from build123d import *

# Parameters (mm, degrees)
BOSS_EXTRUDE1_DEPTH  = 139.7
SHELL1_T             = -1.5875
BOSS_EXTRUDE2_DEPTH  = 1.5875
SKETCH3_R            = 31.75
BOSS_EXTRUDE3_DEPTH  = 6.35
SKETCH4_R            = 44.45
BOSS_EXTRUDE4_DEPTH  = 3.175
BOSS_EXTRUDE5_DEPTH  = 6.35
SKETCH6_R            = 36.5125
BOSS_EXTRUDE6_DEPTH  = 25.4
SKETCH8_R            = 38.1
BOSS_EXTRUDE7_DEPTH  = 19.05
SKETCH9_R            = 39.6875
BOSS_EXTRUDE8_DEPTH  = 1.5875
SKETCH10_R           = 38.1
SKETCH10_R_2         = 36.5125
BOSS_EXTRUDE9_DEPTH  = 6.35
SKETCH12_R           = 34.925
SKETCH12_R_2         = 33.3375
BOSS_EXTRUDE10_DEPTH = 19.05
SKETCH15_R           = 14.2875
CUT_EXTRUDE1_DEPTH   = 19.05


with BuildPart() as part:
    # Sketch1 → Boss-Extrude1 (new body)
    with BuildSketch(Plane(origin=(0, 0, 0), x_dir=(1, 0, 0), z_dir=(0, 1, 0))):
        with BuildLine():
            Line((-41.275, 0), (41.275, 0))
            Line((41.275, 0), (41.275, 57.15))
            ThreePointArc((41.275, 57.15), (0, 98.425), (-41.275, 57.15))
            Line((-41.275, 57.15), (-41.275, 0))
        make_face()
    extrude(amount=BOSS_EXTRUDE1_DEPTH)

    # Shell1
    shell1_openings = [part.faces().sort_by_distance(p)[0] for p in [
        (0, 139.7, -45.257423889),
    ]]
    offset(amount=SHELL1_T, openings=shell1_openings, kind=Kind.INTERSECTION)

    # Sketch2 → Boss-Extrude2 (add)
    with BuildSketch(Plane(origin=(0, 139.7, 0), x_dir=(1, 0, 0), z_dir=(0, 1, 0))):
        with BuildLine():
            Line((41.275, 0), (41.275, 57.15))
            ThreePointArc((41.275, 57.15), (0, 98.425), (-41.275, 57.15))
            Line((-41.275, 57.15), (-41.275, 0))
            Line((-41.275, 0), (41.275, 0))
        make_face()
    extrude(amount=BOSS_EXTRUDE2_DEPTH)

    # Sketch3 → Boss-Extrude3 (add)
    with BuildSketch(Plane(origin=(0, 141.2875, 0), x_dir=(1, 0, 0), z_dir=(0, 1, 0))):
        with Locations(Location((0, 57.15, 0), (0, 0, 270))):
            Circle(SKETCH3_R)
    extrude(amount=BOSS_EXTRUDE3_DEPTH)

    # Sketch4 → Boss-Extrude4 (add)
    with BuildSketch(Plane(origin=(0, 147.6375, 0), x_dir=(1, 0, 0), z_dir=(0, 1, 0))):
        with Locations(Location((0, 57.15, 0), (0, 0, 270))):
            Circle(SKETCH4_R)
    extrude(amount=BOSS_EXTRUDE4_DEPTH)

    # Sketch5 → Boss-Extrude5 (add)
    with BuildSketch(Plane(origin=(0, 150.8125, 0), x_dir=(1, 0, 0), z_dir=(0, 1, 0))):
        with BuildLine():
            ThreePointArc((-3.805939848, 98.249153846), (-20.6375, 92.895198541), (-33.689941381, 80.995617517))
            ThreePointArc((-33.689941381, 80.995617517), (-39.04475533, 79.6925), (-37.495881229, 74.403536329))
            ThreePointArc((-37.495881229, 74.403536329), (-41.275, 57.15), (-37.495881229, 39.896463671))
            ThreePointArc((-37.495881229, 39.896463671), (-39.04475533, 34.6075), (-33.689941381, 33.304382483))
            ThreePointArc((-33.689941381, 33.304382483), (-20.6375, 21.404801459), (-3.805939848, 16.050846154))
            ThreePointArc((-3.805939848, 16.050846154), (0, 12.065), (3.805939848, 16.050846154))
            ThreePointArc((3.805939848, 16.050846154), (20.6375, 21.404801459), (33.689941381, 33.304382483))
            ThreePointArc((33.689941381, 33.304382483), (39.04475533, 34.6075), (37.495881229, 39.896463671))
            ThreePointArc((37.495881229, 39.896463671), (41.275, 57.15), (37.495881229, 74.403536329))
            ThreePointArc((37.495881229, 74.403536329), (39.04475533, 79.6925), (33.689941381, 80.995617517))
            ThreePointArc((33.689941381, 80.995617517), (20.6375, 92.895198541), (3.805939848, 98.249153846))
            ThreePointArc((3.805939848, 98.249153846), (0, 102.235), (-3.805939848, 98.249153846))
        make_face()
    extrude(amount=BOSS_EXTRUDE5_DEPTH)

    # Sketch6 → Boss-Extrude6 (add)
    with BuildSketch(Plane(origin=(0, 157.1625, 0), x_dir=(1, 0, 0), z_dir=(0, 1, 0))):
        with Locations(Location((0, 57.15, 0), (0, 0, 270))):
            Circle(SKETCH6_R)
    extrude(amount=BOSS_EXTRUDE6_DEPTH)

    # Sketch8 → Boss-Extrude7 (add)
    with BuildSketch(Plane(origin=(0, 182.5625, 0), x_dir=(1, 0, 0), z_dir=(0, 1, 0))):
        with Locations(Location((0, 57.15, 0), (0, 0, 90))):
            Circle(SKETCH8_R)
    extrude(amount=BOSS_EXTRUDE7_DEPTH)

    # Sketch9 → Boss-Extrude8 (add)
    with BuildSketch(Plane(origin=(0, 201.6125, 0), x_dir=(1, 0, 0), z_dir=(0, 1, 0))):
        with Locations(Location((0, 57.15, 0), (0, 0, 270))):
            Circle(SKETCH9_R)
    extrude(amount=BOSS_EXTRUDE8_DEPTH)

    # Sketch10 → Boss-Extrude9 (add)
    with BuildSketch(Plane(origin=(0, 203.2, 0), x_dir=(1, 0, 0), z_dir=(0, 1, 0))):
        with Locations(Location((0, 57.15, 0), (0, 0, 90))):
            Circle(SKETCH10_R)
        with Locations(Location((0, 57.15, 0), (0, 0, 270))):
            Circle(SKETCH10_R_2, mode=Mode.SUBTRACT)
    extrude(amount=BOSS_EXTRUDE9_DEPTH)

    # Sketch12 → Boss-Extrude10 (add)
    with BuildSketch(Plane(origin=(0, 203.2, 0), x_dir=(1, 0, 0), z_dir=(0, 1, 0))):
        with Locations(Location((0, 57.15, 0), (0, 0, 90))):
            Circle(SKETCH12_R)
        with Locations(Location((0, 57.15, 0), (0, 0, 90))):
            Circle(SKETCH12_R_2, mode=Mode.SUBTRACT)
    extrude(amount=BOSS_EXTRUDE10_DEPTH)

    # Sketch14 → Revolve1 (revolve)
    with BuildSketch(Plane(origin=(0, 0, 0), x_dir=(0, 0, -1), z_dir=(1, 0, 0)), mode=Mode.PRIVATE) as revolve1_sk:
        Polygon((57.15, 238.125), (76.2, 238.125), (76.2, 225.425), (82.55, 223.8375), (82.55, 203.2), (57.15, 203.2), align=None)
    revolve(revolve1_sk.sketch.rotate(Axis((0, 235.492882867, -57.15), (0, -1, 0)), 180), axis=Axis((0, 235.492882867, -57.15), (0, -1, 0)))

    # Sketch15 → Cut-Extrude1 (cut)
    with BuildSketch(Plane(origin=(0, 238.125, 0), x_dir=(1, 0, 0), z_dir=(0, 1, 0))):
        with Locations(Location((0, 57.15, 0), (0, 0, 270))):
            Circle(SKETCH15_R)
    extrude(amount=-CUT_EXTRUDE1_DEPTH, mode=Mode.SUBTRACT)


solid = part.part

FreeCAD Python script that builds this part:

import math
import FreeCAD as App
import Part
import Sketcher
from FreeCAD import Vector
Q = App.Units.Quantity


def faces_at(feature, points):
    """Names of the faces that lie closest to the given points."""
    faces = feature.Shape.Faces
    near = lambda p: min(range(len(faces)), key=lambda i: faces[i].distToShape(Part.Vertex(*p))[0])
    return sorted({f"Face{near(p) + 1}" for p in points})

doc = App.newDocument("Part")
body = doc.addObject("PartDesign::Body", "Body")

# Sketch on XZ plane
sketch1 = body.newObject("Sketcher::SketchObject", "Sketch")
sketch1.AttachmentSupport = (doc.getObject("XZ_Plane"), [""])
sketch1.MapMode = "FlatFace"
sketch1.addGeometry([
    Part.LineSegment(Vector(-41, 0, 0), Vector(41, 0, 0)),
    Part.LineSegment(Vector(41, 0, 0), Vector(41, -57, 0)),
    Part.ArcOfCircle(Part.Circle(Vector(0, -57, 0), Vector(0, 0, 1), 41), math.radians(180), math.radians(360)),
    Part.LineSegment(Vector(-41, -57, 0), Vector(-41, 0, 0)),
], False)
sketch1.addConstraint([
    Sketcher.Constraint("Coincident", 0, 2, 1, 1),
    Sketcher.Constraint("Tangent", 1, 2, 2, 2),
    Sketcher.Constraint("Tangent", 2, 1, 3, 1),
    Sketcher.Constraint("Coincident", 3, 2, 0, 1),
    Sketcher.Constraint("Horizontal", 0),
    Sketcher.Constraint("Vertical", 1),
    Sketcher.Constraint("Vertical", 3),
    Sketcher.Constraint("Symmetric", 0, 2, 3, 2, -1, 1),
    Sketcher.Constraint("Radius", 2, Q("1.625 in")),
    Sketcher.Constraint("DistanceY", 1, 2, 1, 1, Q("2.25 in")),
])
pad1 = body.newObject("PartDesign::Pad", "Pad")
pad1.Profile = sketch1
pad1.Length = Q("5.5 in")
pad1.Reversed = True
doc.recompute()

thickness = body.newObject("PartDesign::Thickness", "Thickness")
thickness.Base = (pad1, faces_at(pad1, [(0, 139.7, -49.212)]))
thickness.Value = Q("0.0625 in")
thickness.Reversed = True
thickness.Join = "Intersection"

# Sketch on XZ plane
sketch2 = body.newObject("Sketcher::SketchObject", "Sketch001")
sketch2.AttachmentSupport = (doc.getObject("XZ_Plane"), [""])
sketch2.MapMode = "FlatFace"
sketch2.AttachmentOffset = App.Placement(Vector(0, 0, -5.5 * 25.4), App.Rotation())
sketch2.addGeometry([
    Part.LineSegment(Vector(41, 0, 0), Vector(41, -57, 0)),
    Part.ArcOfCircle(Part.Circle(Vector(0, -57, 0), Vector(0, 0, 1), 41), math.radians(180), math.radians(360)),
    Part.LineSegment(Vector(-41, -57, 0), Vector(-41, 0, 0)),
    Part.LineSegment(Vector(-41, 0, 0), Vector(41, 0, 0)),
], False)
sketch2.addConstraint([
    Sketcher.Constraint("Tangent", 0, 2, 1, 2),
    Sketcher.Constraint("Tangent", 1, 1, 2, 1),
    Sketcher.Constraint("Coincident", 2, 2, 3, 1),
    Sketcher.Constraint("Coincident", 3, 2, 0, 1),
    Sketcher.Constraint("Vertical", 0),
    Sketcher.Constraint("Vertical", 2),
    Sketcher.Constraint("Horizontal", 3),
    Sketcher.Constraint("Symmetric", 2, 2, 3, 2, -1, 1),
    Sketcher.Constraint("Radius", 1, Q("1.625 in")),
    Sketcher.Constraint("DistanceY", 0, 2, 0, 1, Q("2.25 in")),
])
pad2 = body.newObject("PartDesign::Pad", "Pad001")
pad2.Profile = sketch2
pad2.Length = Q("0.0625 in")
pad2.Reversed = True

# Sketch on XZ plane
sketch3 = body.newObject("Sketcher::SketchObject", "Sketch002")
sketch3.AttachmentSupport = (doc.getObject("XZ_Plane"), [""])
sketch3.MapMode = "FlatFace"
sketch3.AttachmentOffset = App.Placement(Vector(0, 0, -5.5625 * 25.4), App.Rotation())
sketch3.addGeometry(Part.Circle(Vector(0, -57, 0), Vector(0, 0, 1), 32), False)
sketch3.addConstraint([
    Sketcher.Constraint("PointOnObject", 0, 3, -2),
    Sketcher.Constraint("Diameter", 0, Q("2.5 in")),
    Sketcher.Constraint("DistanceY", 0, 3, -1, 1, Q("2.25 in")),
])
pad3 = body.newObject("PartDesign::Pad", "Pad002")
pad3.Profile = sketch3
pad3.Length = Q("0.25 in")
pad3.Reversed = True

# Sketch on XZ plane
sketch4 = body.newObject("Sketcher::SketchObject", "Sketch003")
sketch4.AttachmentSupport = (doc.getObject("XZ_Plane"), [""])
sketch4.MapMode = "FlatFace"
sketch4.AttachmentOffset = App.Placement(Vector(0, 0, -5.8125 * 25.4), App.Rotation())
sketch4.addGeometry(Part.Circle(Vector(0, -57, 0), Vector(0, 0, 1), 44), False)
sketch4.addConstraint([
    Sketcher.Constraint("PointOnObject", 0, 3, -2),
    Sketcher.Constraint("Diameter", 0, Q("3.5 in")),
    Sketcher.Constraint("DistanceY", 0, 3, -1, 1, Q("2.25 in")),
])
pad4 = body.newObject("PartDesign::Pad", "Pad003")
pad4.Profile = sketch4
pad4.Length = Q("0.125 in")
pad4.Reversed = True

# Sketch on XZ plane
sketch5 = body.newObject("Sketcher::SketchObject", "Sketch004")
sketch5.AttachmentSupport = (doc.getObject("XZ_Plane"), [""])
sketch5.MapMode = "FlatFace"
sketch5.AttachmentOffset = App.Placement(Vector(0, 0, -5.9375 * 25.4), App.Rotation())
sketch5.addGeometry([
    Part.ArcOfCircle(Part.Circle(Vector(0, -57.1, 0), Vector(0, 0, 1), 41.3), math.radians(-145), math.radians(-95)),  # 0
    Part.ArcOfCircle(Part.Circle(Vector(-35.7, -77.8, 0), Vector(0, 0, 1), 3.8), math.radians(117), math.radians(303)),  # 1
    Part.ArcOfCircle(Part.Circle(Vector(0, -57.1, 0), Vector(0, 0, 1), 41.3), math.radians(155), math.radians(205)),  # 2
    Part.ArcOfCircle(Part.Circle(Vector(-35.7, -36.5, 0), Vector(0, 0, 1), 3.8), math.radians(57), math.radians(243)),  # 3
    Part.ArcOfCircle(Part.Circle(Vector(0, -57.2, 0), Vector(0, 0, 1), 41.3), math.radians(95), math.radians(145)),  # 4
    Part.ArcOfCircle(Part.Circle(Vector(0, -15.9, 0), Vector(0, 0, 1), 3.8), math.radians(-3), math.radians(183)),  # 5
    Part.ArcOfCircle(Part.Circle(Vector(0, -57.2, 0), Vector(0, 0, 1), 41.3), math.radians(35), math.radians(85)),  # 6
    Part.ArcOfCircle(Part.Circle(Vector(35.7, -36.5, 0), Vector(0, 0, 1), 3.8), math.radians(-63), math.radians(123)),  # 7
    Part.ArcOfCircle(Part.Circle(Vector(0, -57.1, 0), Vector(0, 0, 1), 41.3), math.radians(-25), math.radians(25)),  # 8
    Part.ArcOfCircle(Part.Circle(Vector(35.7, -77.8, 0), Vector(0, 0, 1), 3.8), math.radians(-123), math.radians(63)),  # 9
    Part.ArcOfCircle(Part.Circle(Vector(0, -57.1, 0), Vector(0, 0, 1), 41.3), math.radians(-85), math.radians(-35)),  # 10
    Part.ArcOfCircle(Part.Circle(Vector(0, -98.4, 0), Vector(0, 0, 1), 3.8), math.radians(177), math.radians(363)),  # 11
], False)
sketch5.addConstraint([
    Sketcher.Constraint("Coincident", 0, 1, 1, 2),
    Sketcher.Constraint("Coincident", 1, 1, 2, 2),
    Sketcher.Constraint("Coincident", 2, 1, 3, 2),
    Sketcher.Constraint("Coincident", 3, 1, 4, 2),
    Sketcher.Constraint("Coincident", 4, 1, 5, 2),
    Sketcher.Constraint("Coincident", 5, 1, 6, 2),
    Sketcher.Constraint("Coincident", 6, 1, 7, 2),
    Sketcher.Constraint("Coincident", 7, 1, 8, 2),
    Sketcher.Constraint("Coincident", 8, 1, 9, 2),
    Sketcher.Constraint("Coincident", 9, 1, 10, 2),
    Sketcher.Constraint("Coincident", 10, 1, 11, 2),
    Sketcher.Constraint("Coincident", 11, 1, 0, 2),
    Sketcher.Constraint("Coincident", 2, 3, 0, 3),
    Sketcher.Constraint("Coincident", 4, 3, 0, 3),
    Sketcher.Constraint("Coincident", 6, 3, 0, 3),
    Sketcher.Constraint("Coincident", 8, 3, 0, 3),
    Sketcher.Constraint("Coincident", 10, 3, 0, 3),
    Sketcher.Constraint("Equal", 0, 2),
    Sketcher.Constraint("Equal", 1, 3),
    Sketcher.Constraint("Equal", 2, 4),
    Sketcher.Constraint("Equal", 3, 5),
    Sketcher.Constraint("Equal", 4, 6),
    Sketcher.Constraint("Equal", 5, 7),
    Sketcher.Constraint("Equal", 6, 8),
    Sketcher.Constraint("Equal", 7, 9),
    Sketcher.Constraint("Equal", 8, 10),
    Sketcher.Constraint("Equal", 9, 11),
    Sketcher.Constraint("Symmetric", 3, 3, 7, 3, -2),
    Sketcher.Constraint("Symmetric", 1, 3, 9, 3, -2),
    Sketcher.Constraint("Symmetric", 4, 1, 5, 1, -2),
    Sketcher.Constraint("PointOnObject", 11, 3, -2),
    Sketcher.Constraint("Vertical", 1, 3, 3, 3),
    Sketcher.Constraint("Vertical", 1, 1, 2, 1),
    Sketcher.Constraint("Radius", 1, Q("0.15 in")),
    Sketcher.Constraint("Radius", 0, Q("1.625 in")),
    Sketcher.Constraint("DistanceY", 0, 3, -1, 1, Q("2.25 in")),
    Sketcher.Constraint("DistanceY", 1, 3, -1, 1, Q("3.0625 in")),
    Sketcher.Constraint("DistanceY", 5, 3, -1, 1, Q("0.625 in")),
    Sketcher.Constraint("DistanceY", 11, 3, -1, 1, Q("3.875 in")),
    Sketcher.Constraint("DistanceX", 1, 3, -1, 1, Q("35.745199 mm")),
])
pad5 = body.newObject("PartDesign::Pad", "Pad004")
pad5.Profile = sketch5
pad5.Length = Q("0.25 in")
pad5.Reversed = True

# Sketch on XZ plane
sketch6 = body.newObject("Sketcher::SketchObject", "Sketch005")
sketch6.AttachmentSupport = (doc.getObject("XZ_Plane"), [""])
sketch6.MapMode = "FlatFace"
sketch6.AttachmentOffset = App.Placement(Vector(0, 0, -6.1875 * 25.4), App.Rotation())
sketch6.addGeometry(Part.Circle(Vector(0, -57, 0), Vector(0, 0, 1), 37), False)
sketch6.addConstraint([
    Sketcher.Constraint("PointOnObject", 0, 3, -2),
    Sketcher.Constraint("Diameter", 0, Q("2.875 in")),
    Sketcher.Constraint("DistanceY", 0, 3, -1, 1, Q("2.25 in")),
])
pad6 = body.newObject("PartDesign::Pad", "Pad005")
pad6.Profile = sketch6
pad6.Length = Q("1 in")
pad6.Reversed = True

# Sketch on XZ plane
sketch7 = body.newObject("Sketcher::SketchObject", "Sketch006")
sketch7.AttachmentSupport = (doc.getObject("XZ_Plane"), [""])
sketch7.MapMode = "FlatFace"
sketch7.AttachmentOffset = App.Placement(Vector(0, 0, -7.1875 * 25.4), App.Rotation())
sketch7.addGeometry(Part.Circle(Vector(0, -57, 0), Vector(0, 0, 1), 38), False)
sketch7.addConstraint([
    Sketcher.Constraint("PointOnObject", 0, 3, -2),
    Sketcher.Constraint("Diameter", 0, Q("3 in")),
    Sketcher.Constraint("DistanceY", 0, 3, -1, 1, Q("2.25 in")),
])
pad7 = body.newObject("PartDesign::Pad", "Pad006")
pad7.Profile = sketch7
pad7.Length = Q("0.75 in")
pad7.Reversed = True

# Sketch on XZ plane
sketch8 = body.newObject("Sketcher::SketchObject", "Sketch007")
sketch8.AttachmentSupport = (doc.getObject("XZ_Plane"), [""])
sketch8.MapMode = "FlatFace"
sketch8.AttachmentOffset = App.Placement(Vector(0, 0, -7.9375 * 25.4), App.Rotation())
sketch8.addGeometry(Part.Circle(Vector(0, -57, 0), Vector(0, 0, 1), 40), False)
sketch8.addConstraint([
    Sketcher.Constraint("PointOnObject", 0, 3, -2),
    Sketcher.Constraint("Diameter", 0, Q("3.125 in")),
    Sketcher.Constraint("DistanceY", 0, 3, -1, 1, Q("2.25 in")),
])
pad8 = body.newObject("PartDesign::Pad", "Pad007")
pad8.Profile = sketch8
pad8.Length = Q("0.0625 in")
pad8.Reversed = True

# Sketch on XZ plane
sketch9 = body.newObject("Sketcher::SketchObject", "Sketch008")
sketch9.AttachmentSupport = (doc.getObject("XZ_Plane"), [""])
sketch9.MapMode = "FlatFace"
sketch9.AttachmentOffset = App.Placement(Vector(0, 0, -8 * 25.4), App.Rotation())
sketch9.addGeometry([
    Part.Circle(Vector(0, -57, 0), Vector(0, 0, 1), 38),
    Part.Circle(Vector(0, -57, 0), Vector(0, 0, 1), 37),
], False)
sketch9.addConstraint([
    Sketcher.Constraint("Coincident", 1, 3, 0, 3),
    Sketcher.Constraint("PointOnObject", 0, 3, -2),
    Sketcher.Constraint("Diameter", 0, Q("3 in")),
    Sketcher.Constraint("Diameter", 1, Q("2.875 in")),
    Sketcher.Constraint("DistanceY", 0, 3, -1, 1, Q("2.25 in")),
])
pad9 = body.newObject("PartDesign::Pad", "Pad008")
pad9.Profile = sketch9
pad9.Length = Q("0.25 in")
pad9.Reversed = True

# Sketch on XZ plane
sketch10 = body.newObject("Sketcher::SketchObject", "Sketch009")
sketch10.AttachmentSupport = (doc.getObject("XZ_Plane"), [""])
sketch10.MapMode = "FlatFace"
sketch10.AttachmentOffset = App.Placement(Vector(0, 0, -8 * 25.4), App.Rotation())
sketch10.addGeometry([
    Part.Circle(Vector(0, -57, 0), Vector(0, 0, 1), 35),
    Part.Circle(Vector(0, -57, 0), Vector(0, 0, 1), 33),
], False)
sketch10.addConstraint([
    Sketcher.Constraint("Coincident", 1, 3, 0, 3),
    Sketcher.Constraint("PointOnObject", 0, 3, -2),
    Sketcher.Constraint("Diameter", 0, Q("2.75 in")),
    Sketcher.Constraint("Diameter", 1, Q("2.625 in")),
    Sketcher.Constraint("DistanceY", 0, 3, -1, 1, Q("2.25 in")),
])
pad10 = body.newObject("PartDesign::Pad", "Pad009")
pad10.Profile = sketch10
pad10.Length = Q("0.75 in")
pad10.Reversed = True

# Sketch on YZ plane
sketch11 = body.newObject("Sketcher::SketchObject", "Sketch010")
sketch11.AttachmentSupport = (doc.getObject("YZ_Plane"), [""])
sketch11.MapMode = "FlatFace"
sketch11.addGeometry([
    Part.LineSegment(Vector(238, -76, 0), Vector(238, -57, 0)),  # 0
    Part.LineSegment(Vector(238, -57, 0), Vector(203, -57, 0)),  # 1
    Part.LineSegment(Vector(203, -57, 0), Vector(203, -83, 0)),  # 2
    Part.LineSegment(Vector(203, -83, 0), Vector(224, -83, 0)),  # 3
    Part.LineSegment(Vector(224, -83, 0), Vector(225, -76, 0)),  # 4
    Part.LineSegment(Vector(225, -76, 0), Vector(238, -76, 0)),  # 5
], False)
sketch11.addGeometry(Part.LineSegment(Vector(238, -57, 0), Vector(203, -57, 0)), True)  # axis
sketch11.addConstraint([
    Sketcher.Constraint("Coincident", 0, 2, 1, 1),
    Sketcher.Constraint("Coincident", 1, 2, 2, 1),
    Sketcher.Constraint("Coincident", 2, 2, 3, 1),
    Sketcher.Constraint("Coincident", 3, 2, 4, 1),
    Sketcher.Constraint("Coincident", 4, 2, 5, 1),
    Sketcher.Constraint("Coincident", 5, 2, 0, 1),
    Sketcher.Constraint("Vertical", 0),
    Sketcher.Constraint("Horizontal", 1),
    Sketcher.Constraint("Vertical", 2),
    Sketcher.Constraint("Horizontal", 3),
    Sketcher.Constraint("Horizontal", 5),
    Sketcher.Constraint("Horizontal", 6),
    Sketcher.Constraint("Coincident", 6, 1, 0, 2),
    Sketcher.Constraint("Vertical", 2, 2, 6, 2),
    Sketcher.Constraint("DistanceY", 2, 2, 2, 1, Q("1 in")),
    Sketcher.Constraint("DistanceX", 5, 1, 5, 2, Q("0.5 in")),
    Sketcher.Constraint("DistanceX", -1, 1, 1, 2, Q("8 in")),
    Sketcher.Constraint("DistanceY", 4, 2, -1, 1, Q("3 in")),
    Sketcher.Constraint("DistanceY", 0, 1, 0, 2, Q("0.75 in")),
    Sketcher.Constraint("DistanceX", 1, 2, 1, 1, Q("1.375 in")),
    Sketcher.Constraint("DistanceX", 3, 1, 3, 2, Q("0.8125 in")),
])
revolution = body.newObject("PartDesign::Revolution", "Revolution")
revolution.Profile = sketch11
revolution.ReferenceAxis = (sketch11, ["Axis0"])
revolution.Angle = 360

# Sketch on XZ plane
sketch12 = body.newObject("Sketcher::SketchObject", "Sketch011")
sketch12.AttachmentSupport = (doc.getObject("XZ_Plane"), [""])
sketch12.MapMode = "FlatFace"
sketch12.AttachmentOffset = App.Placement(Vector(0, 0, -9.375 * 25.4), App.Rotation())
sketch12.addGeometry(Part.Circle(Vector(0, -57, 0), Vector(0, 0, 1), 14), False)
sketch12.addConstraint([
    Sketcher.Constraint("PointOnObject", 0, 3, -2),
    Sketcher.Constraint("Diameter", 0, Q("1.125 in")),
    Sketcher.Constraint("DistanceY", 0, 3, -1, 1, Q("2.25 in")),
])
pocket1 = body.newObject("PartDesign::Pocket", "Pocket")
pocket1.Profile = sketch12
pocket1.Length = Q("0.75 in")
pocket1.Reversed = True

doc.recompute()
